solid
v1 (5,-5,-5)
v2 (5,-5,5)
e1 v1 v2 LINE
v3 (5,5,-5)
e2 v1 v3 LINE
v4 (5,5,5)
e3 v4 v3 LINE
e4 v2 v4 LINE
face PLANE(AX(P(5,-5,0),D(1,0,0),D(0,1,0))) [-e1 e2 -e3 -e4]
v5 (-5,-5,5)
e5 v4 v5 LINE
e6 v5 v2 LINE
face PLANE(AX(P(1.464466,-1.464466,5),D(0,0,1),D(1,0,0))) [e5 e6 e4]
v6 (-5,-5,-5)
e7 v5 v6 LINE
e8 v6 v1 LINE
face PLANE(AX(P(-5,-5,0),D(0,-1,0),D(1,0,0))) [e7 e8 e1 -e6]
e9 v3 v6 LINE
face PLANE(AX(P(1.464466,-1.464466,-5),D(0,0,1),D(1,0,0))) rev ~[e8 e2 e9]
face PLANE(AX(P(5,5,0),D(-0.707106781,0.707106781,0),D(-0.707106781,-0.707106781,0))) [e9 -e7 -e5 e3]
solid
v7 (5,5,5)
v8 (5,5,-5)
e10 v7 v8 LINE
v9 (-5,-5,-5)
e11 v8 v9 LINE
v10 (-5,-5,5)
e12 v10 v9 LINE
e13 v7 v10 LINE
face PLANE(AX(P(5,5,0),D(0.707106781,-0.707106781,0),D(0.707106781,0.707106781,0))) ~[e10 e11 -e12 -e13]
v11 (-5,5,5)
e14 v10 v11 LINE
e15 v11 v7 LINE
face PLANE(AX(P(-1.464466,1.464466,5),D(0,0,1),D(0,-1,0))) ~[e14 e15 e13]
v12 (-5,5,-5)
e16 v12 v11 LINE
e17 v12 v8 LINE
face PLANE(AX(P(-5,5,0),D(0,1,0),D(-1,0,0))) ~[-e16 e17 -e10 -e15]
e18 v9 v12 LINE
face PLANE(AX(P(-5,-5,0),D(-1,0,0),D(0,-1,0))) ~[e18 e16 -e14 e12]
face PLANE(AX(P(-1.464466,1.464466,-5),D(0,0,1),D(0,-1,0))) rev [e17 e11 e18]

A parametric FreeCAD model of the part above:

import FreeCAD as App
import Part
import Sketcher

V = App.Vector

doc = App.newDocument("Part")
params = doc.addObject("Spreadsheet::Sheet", "Params")
for row, (alias, value) in enumerate([
    ("sketch1_width", "10 mm"),
    ("pad1_length", "10 mm"),
], start=1):
    params.set(f"A{row}", alias)
    params.set(f"B{row}", "=" + value)
    params.setAlias(f"B{row}", alias)

body = doc.addObject("PartDesign::Body", "Body")

sketch1 = doc.addObject("Sketcher::SketchObject", "Sketch")
body.addObject(sketch1)
sketch1.AttachmentSupport = (doc.XY_Plane, [""])
sketch1.MapMode = "FlatFace"
sketch1.addGeometry([
    Part.LineSegment(V(-5, -5, 0), V(5, -5, 0)),
    Part.LineSegment(V(5, -5, 0), V(5, 5, 0)),
    Part.LineSegment(V(5, 5, 0), V(-5, -5, 0)),
], False)
sketch1.addConstraint([
    Sketcher.Constraint("Coincident", 0, 2, 1, 1),
    Sketcher.Constraint("Coincident", 1, 2, 2, 1),
    Sketcher.Constraint("Coincident", 2, 2, 0, 1),
    Sketcher.Constraint("Horizontal", 0),
    Sketcher.Constraint("Vertical", 1),
    Sketcher.Constraint("Symmetric", 1, 2, 2, 2, -1, 1),
    Sketcher.Constraint("Equal", 0, 1),
    Sketcher.Constraint("DistanceX", 0, 1, 0, 2, 10.0),
])
sketch1.setExpression("Constraints[7]", "Params.sketch1_width")
pad1 = doc.addObject("PartDesign::Pad", "Pad")
body.addObject(pad1)
pad1.Profile = sketch1
pad1.setExpression("Length", "Params.pad1_length")
pad1.Midplane = True
body2 = doc.addObject("PartDesign::Body", "Body001")
doc.recompute()

mirroring = doc.addObject("Part::Mirroring", "Mirroring")
mirroring.Source = body
mirroring.Base = V(5, 5, 5)
mirroring.Normal = V(0.707106781, -0.707106781, 0)
body2.BaseFeature = mirroring
doc.recompute()
mirroring.Visibility = False

doc.recompute()
